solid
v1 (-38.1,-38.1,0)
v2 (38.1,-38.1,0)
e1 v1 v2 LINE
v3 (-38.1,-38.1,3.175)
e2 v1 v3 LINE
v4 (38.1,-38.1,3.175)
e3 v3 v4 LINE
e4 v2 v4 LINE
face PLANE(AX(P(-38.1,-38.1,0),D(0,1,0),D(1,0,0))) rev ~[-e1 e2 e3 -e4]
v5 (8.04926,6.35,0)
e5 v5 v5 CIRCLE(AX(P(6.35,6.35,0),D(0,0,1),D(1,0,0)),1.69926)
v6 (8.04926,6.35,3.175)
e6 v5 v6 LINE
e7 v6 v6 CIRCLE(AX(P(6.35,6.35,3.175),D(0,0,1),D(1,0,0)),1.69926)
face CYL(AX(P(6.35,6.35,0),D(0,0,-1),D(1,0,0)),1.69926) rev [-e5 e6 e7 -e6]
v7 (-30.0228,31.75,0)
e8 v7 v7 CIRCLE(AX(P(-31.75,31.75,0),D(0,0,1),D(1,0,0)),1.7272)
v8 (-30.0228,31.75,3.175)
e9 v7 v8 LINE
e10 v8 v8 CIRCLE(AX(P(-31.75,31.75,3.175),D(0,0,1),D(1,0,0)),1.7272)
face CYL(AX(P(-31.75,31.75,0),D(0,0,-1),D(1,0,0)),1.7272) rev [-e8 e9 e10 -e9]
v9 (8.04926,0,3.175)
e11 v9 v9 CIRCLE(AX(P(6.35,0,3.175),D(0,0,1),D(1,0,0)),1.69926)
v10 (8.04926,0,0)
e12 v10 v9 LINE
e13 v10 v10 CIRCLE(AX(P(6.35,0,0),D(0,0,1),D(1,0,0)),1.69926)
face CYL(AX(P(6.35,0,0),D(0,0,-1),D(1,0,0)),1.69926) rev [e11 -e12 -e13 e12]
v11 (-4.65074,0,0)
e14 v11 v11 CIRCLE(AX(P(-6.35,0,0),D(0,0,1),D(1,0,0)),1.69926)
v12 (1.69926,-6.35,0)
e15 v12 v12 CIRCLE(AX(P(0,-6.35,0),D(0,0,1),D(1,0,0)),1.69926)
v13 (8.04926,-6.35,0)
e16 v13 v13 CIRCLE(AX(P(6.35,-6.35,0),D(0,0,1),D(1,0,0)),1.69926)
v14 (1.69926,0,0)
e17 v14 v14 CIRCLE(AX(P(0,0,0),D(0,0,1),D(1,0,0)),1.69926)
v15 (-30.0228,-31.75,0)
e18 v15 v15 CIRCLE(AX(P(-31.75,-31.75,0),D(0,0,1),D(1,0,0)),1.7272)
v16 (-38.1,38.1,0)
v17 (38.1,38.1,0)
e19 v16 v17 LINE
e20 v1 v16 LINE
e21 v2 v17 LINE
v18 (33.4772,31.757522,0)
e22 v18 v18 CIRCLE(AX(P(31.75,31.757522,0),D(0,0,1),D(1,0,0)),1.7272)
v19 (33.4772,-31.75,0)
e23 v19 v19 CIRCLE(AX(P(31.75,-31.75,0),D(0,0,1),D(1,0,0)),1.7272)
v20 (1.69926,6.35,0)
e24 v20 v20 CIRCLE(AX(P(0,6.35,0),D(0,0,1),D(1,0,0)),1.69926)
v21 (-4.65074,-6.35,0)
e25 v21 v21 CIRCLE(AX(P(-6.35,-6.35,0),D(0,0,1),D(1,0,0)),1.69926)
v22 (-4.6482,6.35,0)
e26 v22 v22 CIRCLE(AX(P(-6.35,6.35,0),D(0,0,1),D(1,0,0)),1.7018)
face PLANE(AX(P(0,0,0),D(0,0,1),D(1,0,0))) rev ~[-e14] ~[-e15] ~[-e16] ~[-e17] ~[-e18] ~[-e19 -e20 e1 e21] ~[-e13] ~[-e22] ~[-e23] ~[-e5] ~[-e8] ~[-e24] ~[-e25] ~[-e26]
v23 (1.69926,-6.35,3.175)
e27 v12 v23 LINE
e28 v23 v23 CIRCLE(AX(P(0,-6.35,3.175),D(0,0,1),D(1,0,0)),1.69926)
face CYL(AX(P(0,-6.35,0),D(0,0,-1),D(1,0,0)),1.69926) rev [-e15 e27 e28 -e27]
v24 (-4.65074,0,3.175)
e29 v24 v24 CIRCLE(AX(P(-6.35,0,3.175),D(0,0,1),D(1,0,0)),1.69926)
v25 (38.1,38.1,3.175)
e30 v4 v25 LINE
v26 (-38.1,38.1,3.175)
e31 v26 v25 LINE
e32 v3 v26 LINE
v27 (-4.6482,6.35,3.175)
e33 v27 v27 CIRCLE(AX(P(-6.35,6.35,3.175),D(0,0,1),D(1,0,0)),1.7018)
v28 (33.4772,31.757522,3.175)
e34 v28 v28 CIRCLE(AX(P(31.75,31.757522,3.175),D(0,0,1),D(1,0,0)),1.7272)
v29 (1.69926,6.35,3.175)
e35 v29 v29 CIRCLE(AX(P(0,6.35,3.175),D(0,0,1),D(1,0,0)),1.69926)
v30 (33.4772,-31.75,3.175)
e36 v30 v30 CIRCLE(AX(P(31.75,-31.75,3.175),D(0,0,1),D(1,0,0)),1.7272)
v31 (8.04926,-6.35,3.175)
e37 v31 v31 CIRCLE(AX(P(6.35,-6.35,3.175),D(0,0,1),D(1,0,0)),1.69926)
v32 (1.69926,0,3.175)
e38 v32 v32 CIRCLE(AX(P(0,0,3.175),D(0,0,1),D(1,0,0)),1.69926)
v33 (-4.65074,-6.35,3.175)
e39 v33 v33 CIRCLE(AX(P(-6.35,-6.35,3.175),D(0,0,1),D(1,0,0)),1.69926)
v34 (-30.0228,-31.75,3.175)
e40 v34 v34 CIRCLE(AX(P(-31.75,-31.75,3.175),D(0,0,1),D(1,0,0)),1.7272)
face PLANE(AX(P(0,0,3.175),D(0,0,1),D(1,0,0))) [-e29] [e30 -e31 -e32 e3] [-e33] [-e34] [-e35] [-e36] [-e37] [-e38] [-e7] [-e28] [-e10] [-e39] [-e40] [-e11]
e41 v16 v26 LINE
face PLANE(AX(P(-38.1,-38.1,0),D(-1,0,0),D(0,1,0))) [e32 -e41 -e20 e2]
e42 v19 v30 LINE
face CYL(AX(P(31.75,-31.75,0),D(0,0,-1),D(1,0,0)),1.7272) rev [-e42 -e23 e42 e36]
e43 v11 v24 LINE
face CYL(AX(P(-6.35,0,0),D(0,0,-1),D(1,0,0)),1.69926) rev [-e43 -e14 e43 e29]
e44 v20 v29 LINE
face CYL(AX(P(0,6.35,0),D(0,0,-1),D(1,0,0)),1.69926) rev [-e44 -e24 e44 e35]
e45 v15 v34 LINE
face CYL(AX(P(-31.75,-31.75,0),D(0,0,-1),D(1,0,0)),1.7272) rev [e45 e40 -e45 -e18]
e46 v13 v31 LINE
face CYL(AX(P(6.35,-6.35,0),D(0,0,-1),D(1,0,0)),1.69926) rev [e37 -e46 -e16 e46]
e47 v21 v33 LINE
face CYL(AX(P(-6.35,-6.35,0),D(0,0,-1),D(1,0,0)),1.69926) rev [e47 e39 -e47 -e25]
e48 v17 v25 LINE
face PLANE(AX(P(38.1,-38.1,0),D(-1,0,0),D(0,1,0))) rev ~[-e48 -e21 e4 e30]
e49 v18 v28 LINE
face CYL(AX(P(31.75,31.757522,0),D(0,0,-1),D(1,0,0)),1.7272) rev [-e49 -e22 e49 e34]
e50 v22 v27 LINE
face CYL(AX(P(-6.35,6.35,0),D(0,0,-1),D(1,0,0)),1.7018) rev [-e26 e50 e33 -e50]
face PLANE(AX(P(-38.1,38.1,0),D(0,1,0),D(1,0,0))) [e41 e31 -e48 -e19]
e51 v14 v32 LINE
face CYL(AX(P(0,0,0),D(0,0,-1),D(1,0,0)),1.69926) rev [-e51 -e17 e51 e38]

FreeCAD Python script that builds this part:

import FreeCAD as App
import Part
import Sketcher

V = App.Vector
Q = App.Units.Quantity

doc = App.newDocument("Part")
body = doc.addObject("PartDesign::Body", "Body")

# Sketch on XY plane
sketch1 = doc.addObject("Sketcher::SketchObject", "Sketch")
body.addObject(sketch1)
sketch1.AttachmentSupport = (doc.XY_Plane, [""])
sketch1.MapMode = "FlatFace"
sketch1.addGeometry(Part.LineSegment(V(-38.1, 38.1, 0), V(-38.1, -38.1, 0)), False)
sketch1.addGeometry(Part.LineSegment(V(-38.1, -38.1, 0), V(38.1, -38.1, 0)), False)
sketch1.addGeometry(Part.LineSegment(V(38.1, -38.1, 0), V(38.1, 38.1, 0)), False)
sketch1.addGeometry(Part.LineSegment(V(38.1, 38.1, 0), V(-38.1, 38.1, 0)), False)
sketch1.addGeometry(Part.Circle(V(-31.75, -31.75, 0), V(0, 0, 1), 1.7272), False)
sketch1.addGeometry(Part.Circle(V(-6.35, -6.35, 0), V(0, 0, 1), 1.69926), False)
sketch1.addGeometry(Part.Circle(V(-6.35, 0, 0), V(0, 0, 1), 1.69926), False)
sketch1.addGeometry(Part.Circle(V(31.75, -31.75, 0), V(0, 0, 1), 1.7272), False)
sketch1.addGeometry(Part.Circle(V(0, -6.35, 0), V(0, 0, 1), 1.69926), False)
sketch1.addGeometry(Part.Circle(V(6.35, -6.35, 0), V(0, 0, 1), 1.69926), False)
sketch1.addGeometry(Part.Circle(V(0, 0, 0), V(0, 0, 1), 1.69926), False)
sketch1.addGeometry(Part.Circle(V(6.35, 0, 0), V(0, 0, 1), 1.69926), False)
sketch1.addGeometry(Part.Circle(V(-6.35, 6.35, 0), V(0, 0, 1), 1.7018), False)
sketch1.addGeometry(Part.Circle(V(-31.75, 31.75, 0), V(0, 0, 1), 1.7272), False)
sketch1.addGeometry(Part.Circle(V(0, 6.35, 0), V(0, 0, 1), 1.69926), False)
sketch1.addGeometry(Part.Circle(V(6.35, 6.35, 0), V(0, 0, 1), 1.69926), False)
sketch1.addGeometry(Part.Circle(V(31.75, 31.757522, 0), V(0, 0, 1), 1.7272), False)
sketch1.addConstraint(Sketcher.Constraint("Coincident", 0, 2, 1, 1))
sketch1.addConstraint(Sketcher.Constraint("Coincident", 1, 2, 2, 1))
sketch1.addConstraint(Sketcher.Constraint("Coincident", 2, 2, 3, 1))
sketch1.addConstraint(Sketcher.Constraint("Coincident", 3, 2, 0, 1))
sketch1.addConstraint(Sketcher.Constraint("Vertical", 0))
sketch1.addConstraint(Sketcher.Constraint("Horizontal", 1))
sketch1.addConstraint(Sketcher.Constraint("Vertical", 2))
sketch1.addConstraint(Sketcher.Constraint("Horizontal", 3))
sketch1.addConstraint(Sketcher.Constraint("Coincident", 10, 3, -1, 1))
sketch1.addConstraint(Sketcher.Constraint("Equal", 5, 6))
sketch1.addConstraint(Sketcher.Constraint("Equal", 4, 7))
sketch1.addConstraint(Sketcher.Constraint("Equal", 6, 8))
sketch1.addConstraint(Sketcher.Constraint("Equal", 8, 9))
sketch1.addConstraint(Sketcher.Constraint("Equal", 9, 10))
sketch1.addConstraint(Sketcher.Constraint("Equal", 10, 11))
sketch1.addConstraint(Sketcher.Constraint("Equal", 7, 13))
sketch1.addConstraint(Sketcher.Constraint("Equal", 11, 14))
sketch1.addConstraint(Sketcher.Constraint("Equal", 14, 15))
sketch1.addConstraint(Sketcher.Constraint("Equal", 13, 16))
sketch1.addConstraint(Sketcher.Constraint("Symmetric", 6, 3, 11, 3, -1, 1))
sketch1.addConstraint(Sketcher.Constraint("Symmetric", 9, 3, 12, 3, -1, 1))
sketch1.addConstraint(Sketcher.Constraint("Symmetric", 7, 3, 13, 3, -1, 1))
sketch1.addConstraint(Sketcher.Constraint("Symmetric", 8, 3, 14, 3, -1, 1))
sketch1.addConstraint(Sketcher.Constraint("Symmetric", 5, 3, 15, 3, -1, 1))
sketch1.addConstraint(Sketcher.Constraint("Symmetric", 0, 2, 2, 2, -1, 1))
sketch1.addConstraint(Sketcher.Constraint("Symmetric", 4, 3, 7, 3, -2))
sketch1.addConstraint(Sketcher.Constraint("Symmetric", 5, 3, 9, 3, -2))
sketch1.addConstraint(Sketcher.Constraint("PointOnObject", 6, 3, -1))
sketch1.addConstraint(Sketcher.Constraint("PointOnObject", 8, 3, -2))
sketch1.addConstraint(Sketcher.Constraint("Horizontal", 5, 3, 8, 3))
sketch1.addConstraint(Sketcher.Constraint("Vertical", 5, 3, 6, 3))
sketch1.addConstraint(Sketcher.Constraint("Vertical", 7, 3, 16, 3))
sketch1.addConstraint(Sketcher.Constraint("Equal", 3, 0))
sketch1.addConstraint(Sketcher.Constraint("DistanceX", 1, 1, 1, 2, Q("3 in")))
sketch1.addConstraint(Sketcher.Constraint("Diameter", 4, Q("0.136 in")))
sketch1.addConstraint(Sketcher.Constraint("Diameter", 12, Q("0.134 in")))
sketch1.addConstraint(Sketcher.Constraint("DistanceX", 4, 3, 5, 3, Q("1 in")))
sketch1.addConstraint(Sketcher.Constraint("DistanceY", 4, 3, 5, 3, Q("1 in")))
sketch1.addConstraint(Sketcher.Constraint("Diameter", 5, Q("0.1338 in")))
sketch1.addConstraint(Sketcher.Constraint("DistanceX", 5, 3, 7, 3, Q("1.5 in")))
sketch1.addConstraint(Sketcher.Constraint("DistanceY", 5, 3, 12, 3, Q("0.5 in")))
sketch1.addConstraint(Sketcher.Constraint("DistanceY", 15, 3, 16, 3, Q("25.407522 mm")))
pad1 = doc.addObject("PartDesign::Pad", "Pad")
body.addObject(pad1)
pad1.Profile = sketch1
pad1.Length = Q("0.125 in")

doc.recompute()
